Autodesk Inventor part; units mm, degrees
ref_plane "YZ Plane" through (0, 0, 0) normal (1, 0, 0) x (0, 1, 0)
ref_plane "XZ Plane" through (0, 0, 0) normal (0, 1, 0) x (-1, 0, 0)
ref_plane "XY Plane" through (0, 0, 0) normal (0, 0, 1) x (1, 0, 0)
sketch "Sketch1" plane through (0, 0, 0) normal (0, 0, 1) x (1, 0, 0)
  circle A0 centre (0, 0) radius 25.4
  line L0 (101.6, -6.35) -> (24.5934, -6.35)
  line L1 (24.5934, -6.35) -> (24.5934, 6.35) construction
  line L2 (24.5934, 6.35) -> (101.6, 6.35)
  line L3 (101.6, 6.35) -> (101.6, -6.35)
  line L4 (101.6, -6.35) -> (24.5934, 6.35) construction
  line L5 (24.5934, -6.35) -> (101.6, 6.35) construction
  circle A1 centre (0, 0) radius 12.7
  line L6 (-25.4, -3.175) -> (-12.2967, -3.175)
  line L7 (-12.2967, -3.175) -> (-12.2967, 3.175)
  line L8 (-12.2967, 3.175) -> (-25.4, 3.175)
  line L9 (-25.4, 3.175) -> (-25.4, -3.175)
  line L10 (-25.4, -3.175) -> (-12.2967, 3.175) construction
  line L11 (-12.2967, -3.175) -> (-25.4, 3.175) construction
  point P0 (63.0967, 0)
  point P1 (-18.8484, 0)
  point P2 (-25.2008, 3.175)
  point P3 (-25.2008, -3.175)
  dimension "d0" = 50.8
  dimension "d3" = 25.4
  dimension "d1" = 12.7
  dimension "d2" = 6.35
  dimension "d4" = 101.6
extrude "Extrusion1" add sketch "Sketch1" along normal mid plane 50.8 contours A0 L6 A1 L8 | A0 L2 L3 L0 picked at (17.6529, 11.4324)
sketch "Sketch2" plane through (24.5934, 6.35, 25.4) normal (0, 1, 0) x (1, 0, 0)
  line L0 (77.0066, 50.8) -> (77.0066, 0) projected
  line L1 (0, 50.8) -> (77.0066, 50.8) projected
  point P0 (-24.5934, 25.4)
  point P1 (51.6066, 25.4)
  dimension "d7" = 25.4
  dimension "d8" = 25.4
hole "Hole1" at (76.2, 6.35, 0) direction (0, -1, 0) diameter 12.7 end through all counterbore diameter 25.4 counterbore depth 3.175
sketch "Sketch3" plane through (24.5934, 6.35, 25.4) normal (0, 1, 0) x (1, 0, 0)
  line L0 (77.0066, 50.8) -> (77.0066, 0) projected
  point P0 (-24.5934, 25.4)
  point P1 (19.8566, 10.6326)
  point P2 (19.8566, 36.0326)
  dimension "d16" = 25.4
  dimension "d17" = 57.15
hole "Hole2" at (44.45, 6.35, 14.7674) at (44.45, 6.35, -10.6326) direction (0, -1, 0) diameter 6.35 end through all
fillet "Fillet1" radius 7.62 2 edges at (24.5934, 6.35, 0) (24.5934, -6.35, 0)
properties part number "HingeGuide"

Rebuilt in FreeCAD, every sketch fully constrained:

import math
import FreeCAD as App
import Part
import Sketcher
from FreeCAD import Vector
Q = App.Units.Quantity


def edges_at(feature, points):
    """Names of the edges that pass closest to the given points."""
    edges = feature.Shape.Edges
    near = lambda p: min(range(len(edges)), key=lambda i: edges[i].distToShape(Part.Vertex(*p))[0])
    return sorted({f"Edge{near(p) + 1}" for p in points})

doc = App.newDocument("Part")
params = doc.addObject("Spreadsheet::Sheet", "Params")
for row, (alias, value) in enumerate([
    ("sketch1_radius", "1 in"),
    ("sketch1_radius2", "0.5 in"),
    ("sketch1_height", "0.5 in"),
    ("pad1_length", "2 in"),
    ("sketch2_diameter", "0.5 in"),
    ("hole_diameter", "0.5 in"),
    ("hole_cbore_diameter", "1 in"),
    ("hole_cbore_depth", "0.125 in"),
    ("sketch3_diameter", "0.25 in"),
    ("hole2_diameter", "0.25 in"),
    ("fillet_radius", "0.3 in"),
], start=1):
    params.set(f"A{row}", alias)
    params.set(f"B{row}", "=" + value)
    params.setAlias(f"B{row}", alias)

body = doc.addObject("PartDesign::Body", "Body")

# Sketch on XY plane
sketch1 = body.newObject("Sketcher::SketchObject", "Sketch")
sketch1.AttachmentSupport = (doc.getObject("XY_Plane"), [""])
sketch1.MapMode = "FlatFace"
sketch1.addGeometry([
    Part.ArcOfCircle(Part.Circle(Vector(0, 0, 0), Vector(0, 0, 1), 25), math.radians(-173), math.radians(-14)),  # 0
    Part.LineSegment(Vector(25, -6, 0), Vector(102, -6, 0)),  # 1
    Part.LineSegment(Vector(102, -6, 0), Vector(102, 6, 0)),  # 2
    Part.LineSegment(Vector(102, 6, 0), Vector(25, 6, 0)),  # 3
    Part.ArcOfCircle(Part.Circle(Vector(0, 0, 0), Vector(0, 0, 1), 25), math.radians(14), math.radians(173)),  # 4
    Part.LineSegment(Vector(-25, 3, 0), Vector(-12, 3, 0)),  # 5
    Part.ArcOfCircle(Part.Circle(Vector(0, 0, 0), Vector(0, 0, 1), 13), math.radians(-166), math.radians(166)),  # 6
    Part.LineSegment(Vector(-12, -3, 0), Vector(-25, -3, 0)),  # 7
], False)
sketch1.addConstraint([
    Sketcher.Constraint("Coincident", 0, 2, 1, 1),
    Sketcher.Constraint("Coincident", 1, 2, 2, 1),
    Sketcher.Constraint("Coincident", 2, 2, 3, 1),
    Sketcher.Constraint("Coincident", 3, 2, 4, 1),
    Sketcher.Constraint("Coincident", 4, 2, 5, 1),
    Sketcher.Constraint("Coincident", 5, 2, 6, 2),
    Sketcher.Constraint("Coincident", 6, 1, 7, 1),
    Sketcher.Constraint("Coincident", 7, 2, 0, 1),
    Sketcher.Constraint("Horizontal", 1),
    Sketcher.Constraint("Vertical", 2),
    Sketcher.Constraint("Horizontal", 3),
    Sketcher.Constraint("Horizontal", 5),
    Sketcher.Constraint("Horizontal", 7),
    Sketcher.Constraint("Coincident", 0, 3, -1, 1),
    Sketcher.Constraint("Coincident", 4, 3, -1, 1),
    Sketcher.Constraint("Coincident", 6, 3, -1, 1),
    Sketcher.Constraint("Equal", 0, 4),
    Sketcher.Constraint("Vertical", 0, 2, 3, 2),
    Sketcher.Constraint("Vertical", 5, 2, 6, 1),
    Sketcher.Constraint("Radius", 0, Q("1 in")),
    Sketcher.Constraint("Radius", 6, Q("0.5 in")),
    Sketcher.Constraint("DistanceY", 2, 1, 2, 2, Q("0.5 in")),
    Sketcher.Constraint("DistanceX", -1, 1, 1, 2, Q("4 in")),
    Sketcher.Constraint("DistanceY", 6, 1, 5, 2, Q("0.25 in")),
])
sketch1.setExpression("Constraints[19]", "Params.sketch1_radius")
sketch1.setExpression("Constraints[20]", "Params.sketch1_radius2")
sketch1.setExpression("Constraints[21]", "Params.sketch1_height")
pad1 = body.newObject("PartDesign::Pad", "Pad")
pad1.Profile = sketch1
pad1.setExpression("Length", "Params.pad1_length")
pad1.Midplane = True

# Sketch on XZ plane
sketch2 = body.newObject("Sketcher::SketchObject", "Sketch001")
sketch2.AttachmentSupport = (doc.getObject("XZ_Plane"), [""])
sketch2.MapMode = "FlatFace"
sketch2.AttachmentOffset = App.Placement(Vector(0, 0, -0.25 * 25.4), App.Rotation())
sketch2.addGeometry(Part.Circle(Vector(76, 0, 0), Vector(0, 0, 1), 6), False)
sketch2.addConstraint([
    Sketcher.Constraint("PointOnObject", 0, 3, -1),
    Sketcher.Constraint("Diameter", 0, Q("0.5 in")),
    Sketcher.Constraint("DistanceX", -1, 1, 0, 3, Q("3 in")),
])
sketch2.setExpression("Constraints[1]", "Params.sketch2_diameter")
doc.recompute()
hole = body.newObject("PartDesign::Hole", "Hole")
hole.Profile = sketch2
hole.ThreadType = "None"
hole.setExpression("Diameter", "Params.hole_diameter")
hole.DepthType = "ThroughAll"
hole.HoleCutType = "Counterbore"
hole.setExpression("HoleCutDiameter", "Params.hole_cbore_diameter")
hole.setExpression("HoleCutDepth", "Params.hole_cbore_depth")
hole.Reversed = True

# Sketch on XZ plane
sketch3 = body.newObject("Sketcher::SketchObject", "Sketch002")
sketch3.AttachmentSupport = (doc.getObject("XZ_Plane"), [""])
sketch3.MapMode = "FlatFace"
sketch3.AttachmentOffset = App.Placement(Vector(0, 0, -0.25 * 25.4), App.Rotation())
sketch3.addGeometry([
    Part.Circle(Vector(44.5, 14.8, 0), Vector(0, 0, 1), 3.2),
    Part.Circle(Vector(44.5, -10.6, 0), Vector(0, 0, 1), 3.2),
], False)
sketch3.addConstraint([
    Sketcher.Constraint("Equal", 0, 1),
    Sketcher.Constraint("Vertical", 0, 3, 1, 3),
    Sketcher.Constraint("Diameter", 0, Q("0.25 in")),
    Sketcher.Constraint("DistanceY", 1, 3, 0, 3, Q("1 in")),
    Sketcher.Constraint("DistanceX", -1, 1, 0, 3, Q("1.75 in")),
    Sketcher.Constraint("DistanceY", -1, 1, 0, 3, Q("0.5814 in")),
])
sketch3.setExpression("Constraints[2]", "Params.sketch3_diameter")
doc.recompute()
hole2 = body.newObject("PartDesign::Hole", "Hole001")
hole2.Profile = sketch3
hole2.ThreadType = "None"
hole2.setExpression("Diameter", "Params.hole2_diameter")
hole2.DepthType = "ThroughAll"
hole2.Reversed = True
doc.recompute()

fillet = body.newObject("PartDesign::Fillet", "Fillet")
fillet.Base = (hole2, edges_at(hole2, [(24.593, 6.35, 0), (24.593, -6.35, 0)]))
fillet.setExpression("Radius", "Params.fillet_radius")

doc.recompute()
